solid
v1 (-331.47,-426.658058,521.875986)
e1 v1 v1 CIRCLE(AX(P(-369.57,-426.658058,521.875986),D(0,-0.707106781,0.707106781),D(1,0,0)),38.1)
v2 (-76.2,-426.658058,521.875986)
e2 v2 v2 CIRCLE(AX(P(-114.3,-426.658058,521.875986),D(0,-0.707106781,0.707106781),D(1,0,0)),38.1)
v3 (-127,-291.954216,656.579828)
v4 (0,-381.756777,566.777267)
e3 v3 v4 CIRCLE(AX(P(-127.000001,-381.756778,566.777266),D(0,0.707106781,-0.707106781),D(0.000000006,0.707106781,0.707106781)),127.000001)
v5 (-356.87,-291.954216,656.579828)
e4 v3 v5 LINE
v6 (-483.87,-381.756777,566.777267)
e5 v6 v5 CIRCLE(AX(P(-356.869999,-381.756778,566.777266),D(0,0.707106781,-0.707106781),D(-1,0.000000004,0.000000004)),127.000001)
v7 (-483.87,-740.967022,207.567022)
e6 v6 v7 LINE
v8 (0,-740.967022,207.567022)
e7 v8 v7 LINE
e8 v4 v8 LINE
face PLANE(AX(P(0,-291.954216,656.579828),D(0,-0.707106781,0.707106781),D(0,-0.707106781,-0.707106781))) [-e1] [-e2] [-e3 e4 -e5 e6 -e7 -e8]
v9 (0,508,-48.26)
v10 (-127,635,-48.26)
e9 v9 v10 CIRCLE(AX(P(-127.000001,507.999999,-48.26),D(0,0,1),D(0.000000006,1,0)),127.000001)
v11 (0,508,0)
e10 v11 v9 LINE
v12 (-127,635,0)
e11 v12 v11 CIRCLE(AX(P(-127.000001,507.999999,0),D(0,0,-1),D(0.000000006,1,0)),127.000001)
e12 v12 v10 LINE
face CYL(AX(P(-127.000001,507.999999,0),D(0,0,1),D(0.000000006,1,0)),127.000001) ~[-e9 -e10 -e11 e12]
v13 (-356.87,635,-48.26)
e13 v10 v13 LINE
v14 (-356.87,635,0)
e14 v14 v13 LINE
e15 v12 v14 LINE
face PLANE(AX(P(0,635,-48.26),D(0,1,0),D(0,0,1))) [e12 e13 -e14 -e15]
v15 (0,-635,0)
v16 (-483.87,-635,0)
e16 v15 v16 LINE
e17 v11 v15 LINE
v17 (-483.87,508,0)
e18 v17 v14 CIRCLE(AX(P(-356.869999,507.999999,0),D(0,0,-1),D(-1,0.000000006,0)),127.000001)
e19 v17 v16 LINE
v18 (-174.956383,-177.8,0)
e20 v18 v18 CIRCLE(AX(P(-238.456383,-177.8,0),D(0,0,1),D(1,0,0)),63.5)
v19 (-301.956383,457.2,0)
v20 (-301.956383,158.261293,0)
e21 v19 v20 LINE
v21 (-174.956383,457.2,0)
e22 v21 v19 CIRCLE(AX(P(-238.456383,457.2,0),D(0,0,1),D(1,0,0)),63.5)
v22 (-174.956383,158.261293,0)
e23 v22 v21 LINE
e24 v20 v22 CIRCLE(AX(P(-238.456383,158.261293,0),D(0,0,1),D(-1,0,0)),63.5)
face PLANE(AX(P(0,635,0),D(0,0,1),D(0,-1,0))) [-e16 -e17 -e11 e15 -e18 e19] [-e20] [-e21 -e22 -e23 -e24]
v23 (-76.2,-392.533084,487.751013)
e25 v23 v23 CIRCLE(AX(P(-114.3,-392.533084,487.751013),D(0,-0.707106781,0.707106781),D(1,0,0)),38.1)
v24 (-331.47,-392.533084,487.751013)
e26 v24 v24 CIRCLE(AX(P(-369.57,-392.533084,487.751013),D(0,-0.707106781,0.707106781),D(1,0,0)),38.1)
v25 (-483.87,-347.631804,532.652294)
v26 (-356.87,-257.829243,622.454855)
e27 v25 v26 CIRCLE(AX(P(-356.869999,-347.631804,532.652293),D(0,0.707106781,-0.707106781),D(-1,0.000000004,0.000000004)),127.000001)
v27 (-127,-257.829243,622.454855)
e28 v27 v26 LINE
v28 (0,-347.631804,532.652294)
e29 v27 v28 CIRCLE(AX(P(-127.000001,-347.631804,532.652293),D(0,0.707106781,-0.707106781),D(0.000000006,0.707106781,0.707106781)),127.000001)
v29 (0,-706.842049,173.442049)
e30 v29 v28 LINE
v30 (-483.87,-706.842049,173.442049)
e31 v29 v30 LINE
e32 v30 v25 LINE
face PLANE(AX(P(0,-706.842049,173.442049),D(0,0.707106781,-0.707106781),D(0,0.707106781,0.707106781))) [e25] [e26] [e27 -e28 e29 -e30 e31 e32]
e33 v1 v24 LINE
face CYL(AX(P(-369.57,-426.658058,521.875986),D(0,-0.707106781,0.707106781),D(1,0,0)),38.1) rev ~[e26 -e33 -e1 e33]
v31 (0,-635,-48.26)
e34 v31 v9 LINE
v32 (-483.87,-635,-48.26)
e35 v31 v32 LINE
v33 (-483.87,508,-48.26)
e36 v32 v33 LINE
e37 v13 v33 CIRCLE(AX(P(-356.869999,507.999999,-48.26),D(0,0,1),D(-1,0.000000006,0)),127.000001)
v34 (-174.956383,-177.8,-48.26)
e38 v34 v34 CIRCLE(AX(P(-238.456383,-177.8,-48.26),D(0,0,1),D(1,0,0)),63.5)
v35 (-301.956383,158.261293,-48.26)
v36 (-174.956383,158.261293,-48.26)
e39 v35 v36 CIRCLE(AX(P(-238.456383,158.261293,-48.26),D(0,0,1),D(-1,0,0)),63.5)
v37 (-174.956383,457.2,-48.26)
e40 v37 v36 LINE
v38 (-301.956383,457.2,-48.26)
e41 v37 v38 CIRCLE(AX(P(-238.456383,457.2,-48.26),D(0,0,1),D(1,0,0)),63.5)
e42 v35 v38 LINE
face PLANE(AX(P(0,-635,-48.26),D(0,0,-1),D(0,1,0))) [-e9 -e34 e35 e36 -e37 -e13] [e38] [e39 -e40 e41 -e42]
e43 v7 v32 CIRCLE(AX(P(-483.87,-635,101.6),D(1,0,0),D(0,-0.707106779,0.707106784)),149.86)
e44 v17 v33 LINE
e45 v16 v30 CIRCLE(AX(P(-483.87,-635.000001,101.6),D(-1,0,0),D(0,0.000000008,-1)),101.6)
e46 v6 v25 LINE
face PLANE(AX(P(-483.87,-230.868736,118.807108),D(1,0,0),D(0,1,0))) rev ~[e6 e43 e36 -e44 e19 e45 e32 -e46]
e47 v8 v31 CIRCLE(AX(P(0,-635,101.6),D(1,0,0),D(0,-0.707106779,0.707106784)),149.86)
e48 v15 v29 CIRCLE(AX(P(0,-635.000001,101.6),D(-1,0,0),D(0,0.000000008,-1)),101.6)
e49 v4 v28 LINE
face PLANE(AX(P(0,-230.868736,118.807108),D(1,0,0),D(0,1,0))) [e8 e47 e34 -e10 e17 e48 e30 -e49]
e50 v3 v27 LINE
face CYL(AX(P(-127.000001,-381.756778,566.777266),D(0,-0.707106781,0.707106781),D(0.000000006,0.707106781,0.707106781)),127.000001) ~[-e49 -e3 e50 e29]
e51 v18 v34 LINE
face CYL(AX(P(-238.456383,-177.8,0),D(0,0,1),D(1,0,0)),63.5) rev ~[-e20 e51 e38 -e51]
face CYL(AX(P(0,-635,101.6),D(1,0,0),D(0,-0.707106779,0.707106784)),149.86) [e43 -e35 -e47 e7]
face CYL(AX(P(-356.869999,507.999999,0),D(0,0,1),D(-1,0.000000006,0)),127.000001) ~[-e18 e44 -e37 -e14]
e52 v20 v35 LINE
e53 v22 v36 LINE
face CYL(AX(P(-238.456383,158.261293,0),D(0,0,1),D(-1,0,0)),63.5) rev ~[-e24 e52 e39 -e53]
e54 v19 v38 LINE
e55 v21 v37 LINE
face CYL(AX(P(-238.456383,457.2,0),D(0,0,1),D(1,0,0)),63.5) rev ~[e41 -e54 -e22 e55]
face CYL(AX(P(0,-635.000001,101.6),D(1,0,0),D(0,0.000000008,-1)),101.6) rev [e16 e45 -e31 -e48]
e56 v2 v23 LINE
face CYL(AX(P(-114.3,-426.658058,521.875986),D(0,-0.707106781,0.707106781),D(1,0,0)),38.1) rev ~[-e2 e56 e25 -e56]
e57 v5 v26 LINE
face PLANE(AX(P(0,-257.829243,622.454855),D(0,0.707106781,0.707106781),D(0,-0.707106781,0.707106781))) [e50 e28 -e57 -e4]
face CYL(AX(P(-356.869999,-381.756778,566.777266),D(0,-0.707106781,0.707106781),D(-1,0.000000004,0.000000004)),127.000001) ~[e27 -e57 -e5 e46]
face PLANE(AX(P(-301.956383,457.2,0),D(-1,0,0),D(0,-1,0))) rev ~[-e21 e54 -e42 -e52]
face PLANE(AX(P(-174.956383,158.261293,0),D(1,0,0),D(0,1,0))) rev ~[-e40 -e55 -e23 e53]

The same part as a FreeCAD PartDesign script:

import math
import FreeCAD as App
import Part
import Sketcher
Q = App.Units.Quantity

doc = App.newDocument("Part")
body = doc.addObject("PartDesign::Body", "Body")

# Sketch on YZ plane
sketch1 = doc.addObject("Sketcher::SketchObject", "Sketch")
body.addObject(sketch1)
sketch1.AttachmentSupport = (doc.YZ_Plane, [""])
sketch1.MapMode = "FlatFace"
sketch1.addGeometry([
    Part.LineSegment(App.Vector(635, 0, 0), App.Vector(-635, 0, 0)),  # 0
    Part.ArcOfCircle(Part.Circle(App.Vector(-635, 102, 0), App.Vector(0, 0, 1), 102), math.radians(135), math.radians(270)),  # 1
    Part.LineSegment(App.Vector(-707, 173, 0), App.Vector(-258, 622, 0)),  # 2
    Part.LineSegment(App.Vector(-258, 622, 0), App.Vector(-292, 657, 0)),  # 3
    Part.LineSegment(App.Vector(-292, 657, 0), App.Vector(-741, 208, 0)),  # 4
    Part.ArcOfCircle(Part.Circle(App.Vector(-635, 102, 0), App.Vector(0, 0, 1), 150), math.radians(135), math.radians(270)),  # 5
    Part.LineSegment(App.Vector(-635, -48, 0), App.Vector(635, -48, 0)),  # 6
    Part.LineSegment(App.Vector(635, -48, 0), App.Vector(635, 0, 0)),  # 7
], False)
sketch1.addConstraint([
    Sketcher.Constraint("Tangent", 0, 2, 1, 2),
    Sketcher.Constraint("Tangent", 1, 1, 2, 1),
    Sketcher.Constraint("Coincident", 2, 2, 3, 1),
    Sketcher.Constraint("Coincident", 3, 2, 4, 1),
    Sketcher.Constraint("Tangent", 4, 2, 5, 1),
    Sketcher.Constraint("Tangent", 5, 2, 6, 1),
    Sketcher.Constraint("Coincident", 6, 2, 7, 1),
    Sketcher.Constraint("Coincident", 7, 2, 0, 1),
    Sketcher.Constraint("Horizontal", 0),
    Sketcher.Constraint("Horizontal", 6),
    Sketcher.Constraint("Vertical", 7),
    Sketcher.Constraint("Coincident", 5, 3, 1, 3),
    Sketcher.Constraint("Symmetric", 0, 2, 7, 2, -1, 1),
    Sketcher.Constraint("Perpendicular", 2, 3),
    Sketcher.Constraint("Perpendicular", 3, 4),
    Sketcher.Constraint("Radius", 1, Q("4 in")),
    Sketcher.Constraint("Radius", 5, Q("5.9 in")),
    Sketcher.Constraint("DistanceX", 0, 2, 0, 1, Q("50 in")),
    Sketcher.Constraint("Distance", 2, Q("25 in")),
    Sketcher.Constraint("Angle", 2, Q("45 deg")),
])
pad1 = doc.addObject("PartDesign::Pad", "Pad")
body.addObject(pad1)
pad1.Profile = sketch1
pad1.Length = Q("19.05 in")
pad1.Reversed = True

# Sketch on XY plane
sketch2 = doc.addObject("Sketcher::SketchObject", "Sketch001")
body.addObject(sketch2)
sketch2.AttachmentSupport = (doc.XY_Plane, [""])
sketch2.MapMode = "FlatFace"
sketch2.addGeometry([
    Part.Circle(App.Vector(-238, -178, 0), App.Vector(0, 0, 1), 64),  # 0
    Part.LineSegment(App.Vector(-175, 158, 0), App.Vector(-175, 457, 0)),  # 1
    Part.ArcOfCircle(Part.Circle(App.Vector(-238, 457, 0), App.Vector(0, 0, 1), 64), math.radians(0), math.radians(180)),  # 2
    Part.LineSegment(App.Vector(-302, 457, 0), App.Vector(-302, 158, 0)),  # 3
    Part.ArcOfCircle(Part.Circle(App.Vector(-238, 158, 0), App.Vector(0, 0, 1), 64), math.radians(180), math.radians(360)),  # 4
], False)
sketch2.addConstraint([
    Sketcher.Constraint("Tangent", 1, 2, 2, 1),
    Sketcher.Constraint("Tangent", 2, 2, 3, 1),
    Sketcher.Constraint("Tangent", 3, 2, 4, 1),
    Sketcher.Constraint("Tangent", 4, 2, 1, 1),
    Sketcher.Constraint("Vertical", 1),
    Sketcher.Constraint("Vertical", 3),
    Sketcher.Constraint("Equal", 0, 2),
    Sketcher.Constraint("Vertical", 0, 3, 2, 3),
    Sketcher.Constraint("Diameter", 0, Q("5 in")),
    Sketcher.Constraint("DistanceY", 0, 3, -1, 1, Q("7 in")),
    Sketcher.Constraint("DistanceY", -1, 1, 2, 3, Q("18 in")),
    Sketcher.Constraint("DistanceY", 1, 1, 1, 2, 298.938707),
    Sketcher.Constraint("DistanceX", 0, 3, -1, 1, 238.456383),
])
pocket1 = doc.addObject("PartDesign::Pocket", "Pocket")
body.addObject(pocket1)
pocket1.Profile = sketch2
pocket1.Type = "ThroughAll"

# Sketch on an angled plane
sketch3 = doc.addObject("Sketcher::SketchObject", "Sketch002")
body.addObject(sketch3)
sketch3.Placement = App.Placement(App.Vector(0, -474.267022, 474.267022), App.Rotation(App.Vector(1, 0, 0), App.Vector(0, 0.707106781, 0.707106781), App.Vector(0, -0.707106781, 0.707106781), "ZXY"))
sketch3.addGeometry([
    Part.Circle(App.Vector(-370, 67, 0), App.Vector(0, 0, 1), 38),
    Part.Circle(App.Vector(-114, 67, 0), App.Vector(0, 0, 1), 38),
], False)
sketch3.addConstraint([
    Sketcher.Constraint("Equal", 0, 1),
    Sketcher.Constraint("Horizontal", 0, 3, 1, 3),
    Sketcher.Constraint("Diameter", 0, Q("3 in")),
    Sketcher.Constraint("DistanceX", 1, 3, -1, 1, Q("4.5 in")),
    Sketcher.Constraint("DistanceX", 0, 3, -1, 1, Q("14.55 in")),
    Sketcher.Constraint("DistanceY", -1, 1, 0, 3, 67.329243),
])
pocket2 = doc.addObject("PartDesign::Pocket", "Pocket001")
body.addObject(pocket2)
pocket2.Profile = sketch3
pocket2.Length = Q("1.9 in")

# Sketch on XY plane
sketch4 = doc.addObject("Sketcher::SketchObject", "Sketch003")
body.addObject(sketch4)
sketch4.AttachmentSupport = (doc.XY_Plane, [""])
sketch4.MapMode = "FlatFace"
sketch4.addGeometry([
    Part.ArcOfCircle(Part.Circle(App.Vector(-127, 508, 0), App.Vector(0, 0, 1), 127), math.radians(0), math.radians(90)),  # 0
    Part.LineSegment(App.Vector(0, 508, 0), App.Vector(0, 635, 0)),  # 1
    Part.LineSegment(App.Vector(0, 635, 0), App.Vector(-127, 635, 0)),  # 2
    Part.LineSegment(App.Vector(-484, 635, 0), App.Vector(-484, 508, 0)),  # 3
    Part.ArcOfCircle(Part.Circle(App.Vector(-357, 508, 0), App.Vector(0, 0, 1), 127), math.radians(90), math.radians(180)),  # 4
    Part.LineSegment(App.Vector(-357, 635, 0), App.Vector(-484, 635, 0)),  # 5
], False)
sketch4.addConstraint([
    Sketcher.Constraint("Tangent", 0, 1, 1, 1),
    Sketcher.Constraint("Coincident", 1, 2, 2, 1),
    Sketcher.Constraint("Tangent", 2, 2, 0, 2),
    Sketcher.Constraint("Tangent", 3, 2, 4, 2),
    Sketcher.Constraint("Tangent", 4, 1, 5, 1),
    Sketcher.Constraint("Coincident", 5, 2, 3, 1),
    Sketcher.Constraint("Vertical", 1),
    Sketcher.Constraint("Horizontal", 2),
    Sketcher.Constraint("Vertical", 3),
    Sketcher.Constraint("Horizontal", 5),
    Sketcher.Constraint("Equal", 0, 4),
    Sketcher.Constraint("PointOnObject", 0, 1, -2),
    Sketcher.Constraint("Horizontal", 0, 3, 4, 3),
    Sketcher.Constraint("Radius", 0, Q("5 in")),
    Sketcher.Constraint("DistanceY", -1, 1, 0, 3, Q("20 in")),
    Sketcher.Constraint("DistanceX", 4, 3, -1, 1, Q("14.05 in")),
])
pocket3 = doc.addObject("PartDesign::Pocket", "Pocket002")
body.addObject(pocket3)
pocket3.Profile = sketch4
pocket3.Type = "ThroughAll"

# Sketch on an angled plane
sketch5 = doc.addObject("Sketcher::SketchObject", "Sketch004")
body.addObject(sketch5)
sketch5.Placement = App.Placement(App.Vector(0, -474.267022, 474.267022), App.Rotation(App.Vector(1, 0, 0), App.Vector(0, 0.707106781, 0.707106781), App.Vector(0, -0.707106781, 0.707106781), "ZXY"))
sketch5.addGeometry([
    Part.ArcOfCircle(Part.Circle(App.Vector(-357, 131, 0), App.Vector(0, 0, 1), 127), math.radians(90), math.radians(180)),  # 0
    Part.LineSegment(App.Vector(-357, 258, 0), App.Vector(-484, 258, 0)),  # 1
    Part.LineSegment(App.Vector(-484, 258, 0), App.Vector(-484, 131, 0)),  # 2
    Part.LineSegment(App.Vector(0, 258, 0), App.Vector(-127, 258, 0)),  # 3
    Part.ArcOfCircle(Part.Circle(App.Vector(-127, 131, 0), App.Vector(0, 0, 1), 127), math.radians(0), math.radians(90)),  # 4
    Part.LineSegment(App.Vector(0, 131, 0), App.Vector(0, 258, 0)),  # 5
], False)
sketch5.addConstraint([
    Sketcher.Constraint("Tangent", 0, 1, 1, 1),
    Sketcher.Constraint("Coincident", 1, 2, 2, 1),
    Sketcher.Constraint("Tangent", 2, 2, 0, 2),
    Sketcher.Constraint("Tangent", 3, 2, 4, 2),
    Sketcher.Constraint("Tangent", 4, 1, 5, 1),
    Sketcher.Constraint("Coincident", 5, 2, 3, 1),
    Sketcher.Constraint("Horizontal", 1),
    Sketcher.Constraint("Vertical", 2),
    Sketcher.Constraint("Horizontal", 3),
    Sketcher.Constraint("Vertical", 5),
    Sketcher.Constraint("Equal", 0, 4),
    Sketcher.Constraint("PointOnObject", 4, 1, -2),
    Sketcher.Constraint("Horizontal", 0, 3, 4, 3),
    Sketcher.Constraint("Radius", 0, Q("5 in")),
    Sketcher.Constraint("DistanceX", 0, 3, -1, 1, Q("14.05 in")),
    Sketcher.Constraint("DistanceY", -1, 1, 0, 3, 130.829242),
])
pocket4 = doc.addObject("PartDesign::Pocket", "Pocket003")
body.addObject(pocket4)
pocket4.Profile = sketch5
pocket4.Length = Q("1.9 in")

doc.recompute()
